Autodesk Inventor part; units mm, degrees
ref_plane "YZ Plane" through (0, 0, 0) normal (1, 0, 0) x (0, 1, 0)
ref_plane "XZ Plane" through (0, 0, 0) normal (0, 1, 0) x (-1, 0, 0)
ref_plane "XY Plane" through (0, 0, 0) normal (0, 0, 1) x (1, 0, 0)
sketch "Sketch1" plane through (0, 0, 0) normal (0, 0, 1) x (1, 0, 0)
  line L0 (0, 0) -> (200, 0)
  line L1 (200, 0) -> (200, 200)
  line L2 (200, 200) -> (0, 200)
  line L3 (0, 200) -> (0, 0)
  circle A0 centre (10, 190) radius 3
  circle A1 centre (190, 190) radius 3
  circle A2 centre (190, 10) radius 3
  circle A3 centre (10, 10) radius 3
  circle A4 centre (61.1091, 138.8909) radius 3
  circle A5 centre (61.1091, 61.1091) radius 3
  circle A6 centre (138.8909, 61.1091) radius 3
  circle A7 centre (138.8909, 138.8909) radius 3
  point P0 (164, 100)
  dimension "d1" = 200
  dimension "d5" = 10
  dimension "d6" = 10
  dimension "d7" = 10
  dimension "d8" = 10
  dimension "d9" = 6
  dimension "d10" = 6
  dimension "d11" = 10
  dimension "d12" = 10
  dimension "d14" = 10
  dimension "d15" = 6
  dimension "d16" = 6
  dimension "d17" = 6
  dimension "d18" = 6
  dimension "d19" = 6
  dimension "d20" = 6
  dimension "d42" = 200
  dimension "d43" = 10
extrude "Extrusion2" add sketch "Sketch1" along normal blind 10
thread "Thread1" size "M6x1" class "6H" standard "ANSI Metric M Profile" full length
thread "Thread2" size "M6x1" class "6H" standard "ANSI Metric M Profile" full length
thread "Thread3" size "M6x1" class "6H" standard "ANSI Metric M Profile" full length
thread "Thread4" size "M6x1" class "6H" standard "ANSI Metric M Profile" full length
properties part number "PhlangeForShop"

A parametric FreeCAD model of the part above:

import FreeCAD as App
import Part
import Sketcher


def add_polygon(sketch, points):
    """Adds a closed chain of lines whose ends are joined by coincident constraints."""
    first, n = sketch.GeometryCount, len(points)
    for a, b in zip(points, points[1:] + points[:1]):
        sketch.addGeometry(Part.LineSegment(App.Vector(*a, 0), App.Vector(*b, 0)), False)
    for i in range(n):
        sketch.addConstraint(Sketcher.Constraint("Coincident", first + i, 2, first + (i + 1) % n, 1))

doc = App.newDocument("Part")
body = doc.addObject("PartDesign::Body", "Body")

# Sketch on XY plane
sketch1 = doc.addObject("Sketcher::SketchObject", "Sketch")
body.addObject(sketch1)
sketch1.AttachmentSupport = (doc.XY_Plane, [""])
sketch1.MapMode = "FlatFace"
add_polygon(sketch1, [(0, 200), (0, 0), (200, 0), (200, 200)])  # lines 0-3
sketch1.addGeometry(Part.Circle(App.Vector(10, 10, 0), App.Vector(0, 0, 1), 3), False)  # 4
sketch1.addGeometry(Part.Circle(App.Vector(61.1, 61.1, 0), App.Vector(0, 0, 1), 3), False)  # 5
sketch1.addGeometry(Part.Circle(App.Vector(190, 10, 0), App.Vector(0, 0, 1), 3), False)  # 6
sketch1.addGeometry(Part.Circle(App.Vector(138.9, 61.1, 0), App.Vector(0, 0, 1), 3), False)  # 7
sketch1.addGeometry(Part.Circle(App.Vector(61.1, 138.9, 0), App.Vector(0, 0, 1), 3), False)  # 8
sketch1.addGeometry(Part.Circle(App.Vector(10, 190, 0), App.Vector(0, 0, 1), 3), False)  # 9
sketch1.addGeometry(Part.Circle(App.Vector(138.9, 138.9, 0), App.Vector(0, 0, 1), 3), False)  # 10
sketch1.addGeometry(Part.Circle(App.Vector(190, 190, 0), App.Vector(0, 0, 1), 3), False)  # 11
sketch1.addConstraint([
    Sketcher.Constraint("Vertical", 0),
    Sketcher.Constraint("Horizontal", 1),
    Sketcher.Constraint("Vertical", 2),
    Sketcher.Constraint("Horizontal", 3),
    Sketcher.Constraint("Coincident", 0, 2, -1, 1),
    Sketcher.Constraint("Equal", 4, 5),
    Sketcher.Constraint("Equal", 5, 6),
    Sketcher.Constraint("Equal", 6, 7),
    Sketcher.Constraint("Equal", 7, 8),
    Sketcher.Constraint("Equal", 8, 9),
    Sketcher.Constraint("Equal", 9, 10),
    Sketcher.Constraint("Equal", 10, 11),
    Sketcher.Constraint("Horizontal", 4, 3, 6, 3),
    Sketcher.Constraint("Horizontal", 5, 3, 7, 3),
    Sketcher.Constraint("Horizontal", 8, 3, 10, 3),
    Sketcher.Constraint("Horizontal", 9, 3, 11, 3),
    Sketcher.Constraint("Vertical", 5, 3, 8, 3),
    Sketcher.Constraint("Vertical", 4, 3, 9, 3),
    Sketcher.Constraint("Vertical", 7, 3, 10, 3),
    Sketcher.Constraint("Vertical", 6, 3, 11, 3),
    Sketcher.Constraint("Equal", 3, 0),
    Sketcher.Constraint("Diameter", 4, 6.0),
    Sketcher.Constraint("DistanceX", 1, 1, 1, 2, 200.0),
    Sketcher.Constraint("DistanceX", -1, 1, 4, 3, 10.0),
    Sketcher.Constraint("DistanceY", -1, 1, 4, 3, 10.0),
    Sketcher.Constraint("DistanceX", 6, 3, 1, 2, 10.0),
    Sketcher.Constraint("DistanceY", 11, 3, 2, 2, 10.0),
    Sketcher.Constraint("DistanceX", -1, 1, 5, 3, 61.109),
    Sketcher.Constraint("DistanceY", -1, 1, 5, 3, 61.109),
    Sketcher.Constraint("DistanceX", -1, 1, 7, 3, 138.891),
    Sketcher.Constraint("DistanceY", -1, 1, 8, 3, 138.891),
])
pad1 = doc.addObject("PartDesign::Pad", "Pad")
body.addObject(pad1)
pad1.Profile = sketch1
pad1.Length = 10

doc.recompute()
